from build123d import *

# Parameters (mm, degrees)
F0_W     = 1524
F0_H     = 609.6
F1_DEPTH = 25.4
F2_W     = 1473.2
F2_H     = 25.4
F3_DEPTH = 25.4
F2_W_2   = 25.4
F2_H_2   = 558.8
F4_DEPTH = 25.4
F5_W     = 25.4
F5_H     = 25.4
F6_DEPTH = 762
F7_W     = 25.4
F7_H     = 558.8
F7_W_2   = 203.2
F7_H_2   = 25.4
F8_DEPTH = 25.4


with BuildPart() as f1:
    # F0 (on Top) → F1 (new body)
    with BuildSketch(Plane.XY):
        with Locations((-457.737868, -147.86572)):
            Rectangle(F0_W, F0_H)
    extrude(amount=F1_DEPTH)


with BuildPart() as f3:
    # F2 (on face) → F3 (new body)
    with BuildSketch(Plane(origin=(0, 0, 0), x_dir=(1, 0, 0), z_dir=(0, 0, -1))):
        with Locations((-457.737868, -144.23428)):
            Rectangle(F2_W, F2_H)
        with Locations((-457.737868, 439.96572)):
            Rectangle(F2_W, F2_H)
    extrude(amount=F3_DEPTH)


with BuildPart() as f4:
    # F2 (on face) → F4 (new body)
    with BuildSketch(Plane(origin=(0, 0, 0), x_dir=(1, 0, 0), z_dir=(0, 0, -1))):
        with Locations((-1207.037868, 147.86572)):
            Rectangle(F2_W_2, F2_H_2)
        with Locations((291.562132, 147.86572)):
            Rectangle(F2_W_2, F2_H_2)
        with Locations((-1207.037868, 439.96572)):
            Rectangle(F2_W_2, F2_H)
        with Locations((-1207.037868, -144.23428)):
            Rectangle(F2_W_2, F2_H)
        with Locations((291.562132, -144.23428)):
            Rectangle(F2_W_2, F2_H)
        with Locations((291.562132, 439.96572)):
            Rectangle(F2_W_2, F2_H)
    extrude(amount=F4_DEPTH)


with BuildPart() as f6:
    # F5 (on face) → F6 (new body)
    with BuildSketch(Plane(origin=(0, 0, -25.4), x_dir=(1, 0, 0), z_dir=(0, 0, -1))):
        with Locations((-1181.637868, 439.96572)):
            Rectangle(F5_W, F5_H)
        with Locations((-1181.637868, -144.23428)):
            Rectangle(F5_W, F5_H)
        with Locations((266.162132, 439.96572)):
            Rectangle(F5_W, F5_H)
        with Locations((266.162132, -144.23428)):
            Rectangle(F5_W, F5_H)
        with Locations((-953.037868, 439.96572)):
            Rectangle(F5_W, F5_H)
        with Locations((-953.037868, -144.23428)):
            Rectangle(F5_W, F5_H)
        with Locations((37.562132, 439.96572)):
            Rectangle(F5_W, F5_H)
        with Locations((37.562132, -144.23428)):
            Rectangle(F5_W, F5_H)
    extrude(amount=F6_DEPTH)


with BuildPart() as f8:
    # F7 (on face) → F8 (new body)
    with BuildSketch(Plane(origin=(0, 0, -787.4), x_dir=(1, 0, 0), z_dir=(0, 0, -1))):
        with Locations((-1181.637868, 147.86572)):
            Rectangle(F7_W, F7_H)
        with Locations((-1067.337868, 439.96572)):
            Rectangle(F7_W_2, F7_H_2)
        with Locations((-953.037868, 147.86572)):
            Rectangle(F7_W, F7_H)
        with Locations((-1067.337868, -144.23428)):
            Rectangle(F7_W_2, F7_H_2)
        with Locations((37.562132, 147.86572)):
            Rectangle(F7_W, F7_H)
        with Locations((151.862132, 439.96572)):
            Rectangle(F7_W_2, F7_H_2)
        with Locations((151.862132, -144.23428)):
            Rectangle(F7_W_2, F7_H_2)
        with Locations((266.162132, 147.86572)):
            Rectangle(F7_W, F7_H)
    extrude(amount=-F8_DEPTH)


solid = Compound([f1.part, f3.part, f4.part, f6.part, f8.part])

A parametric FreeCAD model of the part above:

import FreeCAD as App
import Part
import Sketcher
Q = App.Units.Quantity

doc = App.newDocument("Part")
body = doc.addObject("PartDesign::Body", "Body")

# Sketch on XY plane
sketch1 = doc.addObject("Sketcher::SketchObject", "Sketch")
body.addObject(sketch1)
sketch1.AttachmentSupport = (doc.XY_Plane, [""])
sketch1.MapMode = "FlatFace"
sketch1.addGeometry(Part.LineSegment(App.Vector(-1220, 157, 0), App.Vector(-1220, -453, 0)), False)
sketch1.addGeometry(Part.LineSegment(App.Vector(-1220, -453, 0), App.Vector(304, -453, 0)), False)
sketch1.addGeometry(Part.LineSegment(App.Vector(304, -453, 0), App.Vector(304, 157, 0)), False)
sketch1.addGeometry(Part.LineSegment(App.Vector(304, 157, 0), App.Vector(-1220, 157, 0)), False)
sketch1.addConstraint(Sketcher.Constraint("Coincident", 0, 2, 1, 1))
sketch1.addConstraint(Sketcher.Constraint("Coincident", 1, 2, 2, 1))
sketch1.addConstraint(Sketcher.Constraint("Coincident", 2, 2, 3, 1))
sketch1.addConstraint(Sketcher.Constraint("Coincident", 3, 2, 0, 1))
sketch1.addConstraint(Sketcher.Constraint("Vertical", 0))
sketch1.addConstraint(Sketcher.Constraint("Horizontal", 1))
sketch1.addConstraint(Sketcher.Constraint("Vertical", 2))
sketch1.addConstraint(Sketcher.Constraint("Horizontal", 3))
sketch1.addConstraint(Sketcher.Constraint("DistanceX", 1, 1, 1, 2, Q("60 in")))
sketch1.addConstraint(Sketcher.Constraint("DistanceY", 0, 2, 0, 1, Q("24 in")))
sketch1.addConstraint(Sketcher.Constraint("DistanceX", 0, 2, -1, 1, Q("1219.737868 mm")))
sketch1.addConstraint(Sketcher.Constraint("DistanceY", 0, 2, -1, 1, Q("452.66572 mm")))
pad1 = doc.addObject("PartDesign::Pad", "Pad")
body.addObject(pad1)
pad1.Profile = sketch1
pad1.Length = Q("1 in")
body2 = doc.addObject("PartDesign::Body", "Body001")
body2.AllowCompound = True

# Sketch on XY plane
sketch2 = doc.addObject("Sketcher::SketchObject", "Sketch001")
body2.addObject(sketch2)
sketch2.AttachmentSupport = (doc.getObject("XY_Plane001"), [""])
sketch2.MapMode = "FlatFace"
sketch2.addGeometry(Part.LineSegment(App.Vector(-1194, 132, 0), App.Vector(-1194, 157, 0)), False)
sketch2.addGeometry(Part.LineSegment(App.Vector(-1194, 157, 0), App.Vector(279, 157, 0)), False)
sketch2.addGeometry(Part.LineSegment(App.Vector(279, 157, 0), App.Vector(279, 132, 0)), False)
sketch2.addGeometry(Part.LineSegment(App.Vector(279, 132, 0), App.Vector(-1194, 132, 0)), False)
sketch2.addGeometry(Part.LineSegment(App.Vector(-1194, -453, 0), App.Vector(-1194, -427, 0)), False)
sketch2.addGeometry(Part.LineSegment(App.Vector(-1194, -427, 0), App.Vector(279, -427, 0)), False)
sketch2.addGeometry(Part.LineSegment(App.Vector(279, -427, 0), App.Vector(279, -453, 0)), False)
sketch2.addGeometry(Part.LineSegment(App.Vector(279, -453, 0), App.Vector(-1194, -453, 0)), False)
sketch2.addConstraint(Sketcher.Constraint("Coincident", 0, 2, 1, 1))
sketch2.addConstraint(Sketcher.Constraint("Coincident", 1, 2, 2, 1))
sketch2.addConstraint(Sketcher.Constraint("Coincident", 2, 2, 3, 1))
sketch2.addConstraint(Sketcher.Constraint("Coincident", 3, 2, 0, 1))
sketch2.addConstraint(Sketcher.Constraint("Coincident", 4, 2, 5, 1))
sketch2.addConstraint(Sketcher.Constraint("Coincident", 5, 2, 6, 1))
sketch2.addConstraint(Sketcher.Constraint("Coincident", 6, 2, 7, 1))
sketch2.addConstraint(Sketcher.Constraint("Coincident", 7, 2, 4, 1))
sketch2.addConstraint(Sketcher.Constraint("Vertical", 0))
sketch2.addConstraint(Sketcher.Constraint("Horizontal", 1))
sketch2.addConstraint(Sketcher.Constraint("Vertical", 2))
sketch2.addConstraint(Sketcher.Constraint("Horizontal", 3))
sketch2.addConstraint(Sketcher.Constraint("Vertical", 4))
sketch2.addConstraint(Sketcher.Constraint("Horizontal", 5))
sketch2.addConstraint(Sketcher.Constraint("Vertical", 6))
sketch2.addConstraint(Sketcher.Constraint("Horizontal", 7))
sketch2.addConstraint(Sketcher.Constraint("Vertical", 3, 2, 4, 2))
sketch2.addConstraint(Sketcher.Constraint("Vertical", 2, 2, 5, 2))
sketch2.addConstraint(Sketcher.Constraint("Equal", 2, 4))
sketch2.addConstraint(Sketcher.Constraint("DistanceX", 1, 1, 1, 2, Q("58 in")))
sketch2.addConstraint(Sketcher.Constraint("DistanceY", 0, 1, 0, 2, Q("1 in")))
sketch2.addConstraint(Sketcher.Constraint("DistanceY", 4, 2, 3, 2, Q("22 in")))
sketch2.addConstraint(Sketcher.Constraint("DistanceX", 0, 2, -1, 1, Q("1194.337868 mm")))
sketch2.addConstraint(Sketcher.Constraint("DistanceY", -1, 1, 0, 2, Q("156.93428 mm")))
pad2 = doc.addObject("PartDesign::Pad", "Pad001")
body2.addObject(pad2)
pad2.Profile = sketch2
pad2.Length = Q("1 in")
pad2.Reversed = True
body3 = doc.addObject("PartDesign::Body", "Body002")
body3.AllowCompound = True

# Sketch on XY plane
sketch3 = doc.addObject("Sketcher::SketchObject", "Sketch002")
body3.addObject(sketch3)
sketch3.AttachmentSupport = (doc.getObject("XY_Plane002"), [""])
sketch3.MapMode = "FlatFace"
sketch3.addGeometry(Part.LineSegment(App.Vector(-1194, -453, 0), App.Vector(-1220, -453, 0)), False)
sketch3.addGeometry(Part.LineSegment(App.Vector(-1220, -453, 0), App.Vector(-1220, 157, 0)), False)
sketch3.addGeometry(Part.LineSegment(App.Vector(-1220, 157, 0), App.Vector(-1194, 157, 0)), False)
sketch3.addGeometry(Part.LineSegment(App.Vector(-1194, 157, 0), App.Vector(-1194, -453, 0)), False)
sketch3.addGeometry(Part.LineSegment(App.Vector(279, 157, 0), App.Vector(304, 157, 0)), False)
sketch3.addGeometry(Part.LineSegment(App.Vector(304, 157, 0), App.Vector(304, -453, 0)), False)
sketch3.addGeometry(Part.LineSegment(App.Vector(304, -453, 0), App.Vector(279, -453, 0)), False)
sketch3.addGeometry(Part.LineSegment(App.Vector(279, -453, 0), App.Vector(279, 157, 0)), False)
sketch3.addConstraint(Sketcher.Constraint("Coincident", 0, 2, 1, 1))
sketch3.addConstraint(Sketcher.Constraint("Coincident", 1, 2, 2, 1))
sketch3.addConstraint(Sketcher.Constraint("Coincident", 2, 2, 3, 1))
sketch3.addConstraint(Sketcher.Constraint("Coincident", 3, 2, 0, 1))
sketch3.addConstraint(Sketcher.Constraint("Coincident", 4, 2, 5, 1))
sketch3.addConstraint(Sketcher.Constraint("Coincident", 5, 2, 6, 1))
sketch3.addConstraint(Sketcher.Constraint("Coincident", 6, 2, 7, 1))
sketch3.addConstraint(Sketcher.Constraint("Coincident", 7, 2, 4, 1))
sketch3.addConstraint(Sketcher.Constraint("Horizontal", 0))
sketch3.addConstraint(Sketcher.Constraint("Vertical", 1))
sketch3.addConstraint(Sketcher.Constraint("Horizontal", 2))
sketch3.addConstraint(Sketcher.Constraint("Vertical", 3))
sketch3.addConstraint(Sketcher.Constraint("Horizontal", 4))
sketch3.addConstraint(Sketcher.Constraint("Vertical", 5))
sketch3.addConstraint(Sketcher.Constraint("Horizontal", 6))
sketch3.addConstraint(Sketcher.Constraint("Vertical", 7))
sketch3.addConstraint(Sketcher.Constraint("Horizontal", 2, 2, 4, 2))
sketch3.addConstraint(Sketcher.Constraint("Horizontal", 3, 2, 5, 2))
sketch3.addConstraint(Sketcher.Constraint("Equal", 2, 4))
sketch3.addConstraint(Sketcher.Constraint("DistanceX", 0, 2, 0, 1, Q("1 in")))
sketch3.addConstraint(Sketcher.Constraint("DistanceY", 1, 1, 1, 2, Q("24 in")))
sketch3.addConstraint(Sketcher.Constraint("DistanceX", 2, 2, 4, 2, Q("59 in")))
sketch3.addConstraint(Sketcher.Constraint("DistanceX", 0, 2, -1, 1, Q("1219.737868 mm")))
sketch3.addConstraint(Sketcher.Constraint("DistanceY", 0, 2, -1, 1, Q("452.66572 mm")))
pad3 = doc.addObject("PartDesign::Pad", "Pad002")
body3.addObject(pad3)
pad3.Profile = sketch3
pad3.Length = Q("1 in")
pad3.Reversed = True
body4 = doc.addObject("PartDesign::Body", "Body003")
body4.AllowCompound = True

# Sketch on XY plane
sketch4 = doc.addObject("Sketcher::SketchObject", "Sketch003")
body4.addObject(sketch4)
sketch4.AttachmentSupport = (doc.getObject("XY_Plane003"), [""])
sketch4.MapMode = "FlatFace"
sketch4.AttachmentOffset = App.Placement(App.Vector(0, 0, -1 * 25.4), App.Rotation())
sketch4.addGeometry(Part.LineSegment(App.Vector(-1194, -453, 0), App.Vector(-1194, -427, 0)), False)
sketch4.addGeometry(Part.LineSegment(App.Vector(-1194, -427, 0), App.Vector(-1169, -427, 0)), False)
sketch4.addGeometry(Part.LineSegment(App.Vector(-1169, -427, 0), App.Vector(-1169, -453, 0)), False)
sketch4.addGeometry(Part.LineSegment(App.Vector(-1169, -453, 0), App.Vector(-1194, -453, 0)), False)
sketch4.addGeometry(Part.LineSegment(App.Vector(-1194, 132, 0), App.Vector(-1194, 157, 0)), False)
sketch4.addGeometry(Part.LineSegment(App.Vector(-1194, 157, 0), App.Vector(-1169, 157, 0)), False)
sketch4.addGeometry(Part.LineSegment(App.Vector(-1169, 157, 0), App.Vector(-1169, 132, 0)), False)
sketch4.addGeometry(Part.LineSegment(App.Vector(-1169, 132, 0), App.Vector(-1194, 132, 0)), False)
sketch4.addGeometry(Part.LineSegment(App.Vector(253, -453, 0), App.Vector(253, -427, 0)), False)
sketch4.addGeometry(Part.LineSegment(App.Vector(253, -427, 0), App.Vector(279, -427, 0)), False)
sketch4.addGeometry(Part.LineSegment(App.Vector(279, -427, 0), App.Vector(279, -453, 0)), False)
sketch4.addGeometry(Part.LineSegment(App.Vector(279, -453, 0), App.Vector(253, -453, 0)), False)
sketch4.addGeometry(Part.LineSegment(App.Vector(253, 132, 0), App.Vector(253, 157, 0)), False)
sketch4.addGeometry(Part.LineSegment(App.Vector(253, 157, 0), App.Vector(279, 157, 0)), False)
sketch4.addGeometry(Part.LineSegment(App.Vector(279, 157, 0), App.Vector(279, 132, 0)), False)
sketch4.addGeometry(Part.LineSegment(App.Vector(279, 132, 0), App.Vector(253, 132, 0)), False)
sketch4.addGeometry(Part.LineSegment(App.Vector(-966, -453, 0), App.Vector(-966, -427, 0)), False)
sketch4.addGeometry(Part.LineSegment(App.Vector(-966, -427, 0), App.Vector(-940, -427, 0)), False)
sketch4.addGeometry(Part.LineSegment(App.Vector(-940, -427, 0), App.Vector(-940, -453, 0)), False)
sketch4.addGeometry(Part.LineSegment(App.Vector(-940, -453, 0), App.Vector(-966, -453, 0)), False)
sketch4.addGeometry(Part.LineSegment(App.Vector(-966, 132, 0), App.Vector(-966, 157, 0)), False)
sketch4.addGeometry(Part.LineSegment(App.Vector(-966, 157, 0), App.Vector(-940, 157, 0)), False)
sketch4.addGeometry(Part.LineSegment(App.Vector(-940, 157, 0), App.Vector(-940, 132, 0)), False)
sketch4.addGeometry(Part.LineSegment(App.Vector(-940, 132, 0), App.Vector(-966, 132, 0)), False)
sketch4.addGeometry(Part.LineSegment(App.Vector(25, -453, 0), App.Vector(25, -427, 0)), False)
sketch4.addGeometry(Part.LineSegment(App.Vector(25, -427, 0), App.Vector(50, -427, 0)), False)
sketch4.addGeometry(Part.LineSegment(App.Vector(50, -427, 0), App.Vector(50, -453, 0)), False)
sketch4.addGeometry(Part.LineSegment(App.Vector(50, -453, 0), App.Vector(25, -453, 0)), False)
sketch4.addGeometry(Part.LineSegment(App.Vector(25, 132, 0), App.Vector(25, 157, 0)), False)
sketch4.addGeometry(Part.LineSegment(App.Vector(25, 157, 0), App.Vector(50, 157, 0)), False)
sketch4.addGeometry(Part.LineSegment(App.Vector(50, 157, 0), App.Vector(50, 132, 0)), False)
sketch4.addGeometry(Part.LineSegment(App.Vector(50, 132, 0), App.Vector(25, 132, 0)), False)
sketch4.addConstraint(Sketcher.Constraint("Coincident", 0, 2, 1, 1))
sketch4.addConstraint(Sketcher.Constraint("Coincident", 1, 2, 2, 1))
sketch4.addConstraint(Sketcher.Constraint("Coincident", 2, 2, 3, 1))
sketch4.addConstraint(Sketcher.Constraint("Coincident", 3, 2, 0, 1))
sketch4.addConstraint(Sketcher.Constraint("Coincident", 4, 2, 5, 1))
sketch4.addConstraint(Sketcher.Constraint("Coincident", 5, 2, 6, 1))
sketch4.addConstraint(Sketcher.Constraint("Coincident", 6, 2, 7, 1))
sketch4.addConstraint(Sketcher.Constraint("Coincident", 7, 2, 4, 1))
sketch4.addConstraint(Sketcher.Constraint("Coincident", 8, 2, 9, 1))
sketch4.addConstraint(Sketcher.Constraint("Coincident", 9, 2, 10, 1))
sketch4.addConstraint(Sketcher.Constraint("Coincident", 10, 2, 11, 1))
sketch4.addConstraint(Sketcher.Constraint("Coincident", 11, 2, 8, 1))
sketch4.addConstraint(Sketcher.Constraint("Coincident", 12, 2, 13, 1))
sketch4.addConstraint(Sketcher.Constraint("Coincident", 13, 2, 14, 1))
sketch4.addConstraint(Sketcher.Constraint("Coincident", 14, 2, 15, 1))
sketch4.addConstraint(Sketcher.Constraint("Coincident", 15, 2, 12, 1))
sketch4.addConstraint(Sketcher.Constraint("Coincident", 16, 2, 17, 1))
sketch4.addConstraint(Sketcher.Constraint("Coincident", 17, 2, 18, 1))
sketch4.addConstraint(Sketcher.Constraint("Coincident", 18, 2, 19, 1))
sketch4.addConstraint(Sketcher.Constraint("Coincident", 19, 2, 16, 1))
sketch4.addConstraint(Sketcher.Constraint("Coincident", 20, 2, 21, 1))
sketch4.addConstraint(Sketcher.Constraint("Coincident", 21, 2, 22, 1))
sketch4.addConstraint(Sketcher.Constraint("Coincident", 22, 2, 23, 1))
sketch4.addConstraint(Sketcher.Constraint("Coincident", 23, 2, 20, 1))
sketch4.addConstraint(Sketcher.Constraint("Coincident", 24, 2, 25, 1))
sketch4.addConstraint(Sketcher.Constraint("Coincident", 25, 2, 26, 1))
sketch4.addConstraint(Sketcher.Constraint("Coincident", 26, 2, 27, 1))
sketch4.addConstraint(Sketcher.Constraint("Coincident", 27, 2, 24, 1))
sketch4.addConstraint(Sketcher.Constraint("Coincident", 28, 2, 29, 1))
sketch4.addConstraint(Sketcher.Constraint("Coincident", 29, 2, 30, 1))
sketch4.addConstraint(Sketcher.Constraint("Coincident", 30, 2, 31, 1))
sketch4.addConstraint(Sketcher.Constraint("Coincident", 31, 2, 28, 1))
sketch4.addConstraint(Sketcher.Constraint("Vertical", 0))
sketch4.addConstraint(Sketcher.Constraint("Horizontal", 1))
sketch4.addConstraint(Sketcher.Constraint("Vertical", 2))
sketch4.addConstraint(Sketcher.Constraint("Horizontal", 3))
sketch4.addConstraint(Sketcher.Constraint("Vertical", 4))
sketch4.addConstraint(Sketcher.Constraint("Horizontal", 5))
sketch4.addConstraint(Sketcher.Constraint("Vertical", 6))
sketch4.addConstraint(Sketcher.Constraint("Horizontal", 7))
sketch4.addConstraint(Sketcher.Constraint("Vertical", 8))
sketch4.addConstraint(Sketcher.Constraint("Horizontal", 9))
sketch4.addConstraint(Sketcher.Constraint("Vertical", 10))
sketch4.addConstraint(Sketcher.Constraint("Horizontal", 11))
sketch4.addConstraint(Sketcher.Constraint("Vertical", 12))
sketch4.addConstraint(Sketcher.Constraint("Horizontal", 13))
sketch4.addConstraint(Sketcher.Constraint("Vertical", 14))
sketch4.addConstraint(Sketcher.Constraint("Horizontal", 15))
sketch4.addConstraint(Sketcher.Constraint("Vertical", 16))
sketch4.addConstraint(Sketcher.Constraint("Horizontal", 17))
sketch4.addConstraint(Sketcher.Constraint("Vertical", 18))
sketch4.addConstraint(Sketcher.Constraint("Horizontal", 19))
sketch4.addConstraint(Sketcher.Constraint("Vertical", 20))
sketch4.addConstraint(Sketcher.Constraint("Horizontal", 21))
sketch4.addConstraint(Sketcher.Constraint("Vertical", 22))
sketch4.addConstraint(Sketcher.Constraint("Horizontal", 23))
sketch4.addConstraint(Sketcher.Constraint("Vertical", 24))
sketch4.addConstraint(Sketcher.Constraint("Horizontal", 25))
sketch4.addConstraint(Sketcher.Constraint("Vertical", 26))
sketch4.addConstraint(Sketcher.Constraint("Horizontal", 27))
sketch4.addConstraint(Sketcher.Constraint("Vertical", 28))
sketch4.addConstraint(Sketcher.Constraint("Horizontal", 29))
sketch4.addConstraint(Sketcher.Constraint("Vertical", 30))
sketch4.addConstraint(Sketcher.Constraint("Horizontal", 31))
sketch4.addConstraint(Sketcher.Constraint("Horizontal", 1, 2, 8, 2))
sketch4.addConstraint(Sketcher.Constraint("Horizontal", 3, 2, 10, 2))
sketch4.addConstraint(Sketcher.Constraint("Horizontal", 5, 2, 12, 2))
sketch4.addConstraint(Sketcher.Constraint("Horizontal", 7, 2, 14, 2))
sketch4.addConstraint(Sketcher.Constraint("Horizontal", 9, 2, 16, 2))
sketch4.addConstraint(Sketcher.Constraint("Horizontal", 11, 2, 18, 2))
sketch4.addConstraint(Sketcher.Constraint("Horizontal", 13, 2, 20, 2))
sketch4.addConstraint(Sketcher.Constraint("Horizontal", 15, 2, 22, 2))
sketch4.addConstraint(Sketcher.Constraint("Horizontal", 17, 2, 24, 2))
sketch4.addConstraint(Sketcher.Constraint("Horizontal", 19, 2, 26, 2))
sketch4.addConstraint(Sketcher.Constraint("Horizontal", 21, 2, 28, 2))
sketch4.addConstraint(Sketcher.Constraint("Horizontal", 23, 2, 30, 2))
sketch4.addConstraint(Sketcher.Constraint("Vertical", 3, 2, 4, 2))
sketch4.addConstraint(Sketcher.Constraint("Vertical", 2, 2, 5, 2))
sketch4.addConstraint(Sketcher.Constraint("Vertical", 11, 2, 12, 2))
sketch4.addConstraint(Sketcher.Constraint("Vertical", 10, 2, 13, 2))
sketch4.addConstraint(Sketcher.Constraint("Vertical", 19, 2, 20, 2))
sketch4.addConstraint(Sketcher.Constraint("Vertical", 18, 2, 21, 2))
sketch4.addConstraint(Sketcher.Constraint("Vertical", 27, 2, 28, 2))
sketch4.addConstraint(Sketcher.Constraint("Vertical", 26, 2, 29, 2))
sketch4.addConstraint(Sketcher.Constraint("Equal", 7, 9))
sketch4.addConstraint(Sketcher.Constraint("Equal", 15, 17))
sketch4.addConstraint(Sketcher.Constraint("Equal", 23, 25))
sketch4.addConstraint(Sketcher.Constraint("Equal", 31, 0))
sketch4.addConstraint(Sketcher.Constraint("Equal", 2, 4))
sketch4.addConstraint(Sketcher.Constraint("DistanceX", 1, 1, 1, 2, Q("1 in")))
sketch4.addConstraint(Sketcher.Constraint("DistanceY", 0, 2, 4, 2, Q("23 in")))
sketch4.addConstraint(Sketcher.Constraint("DistanceX", 1, 2, 8, 2, Q("56 in")))
sketch4.addConstraint(Sketcher.Constraint("DistanceX", 1, 2, 16, 2, Q("8 in")))
sketch4.addConstraint(Sketcher.Constraint("DistanceX", 24, 2, 8, 2, Q("9 in")))
sketch4.addConstraint(Sketcher.Constraint("DistanceX", 0, 2, -1, 1, Q("1194.337868 mm")))
sketch4.addConstraint(Sketcher.Constraint("DistanceY", 0, 2, -1, 1, Q("427.26572 mm")))
pad4 = doc.addObject("PartDesign::Pad", "Pad003")
body4.addObject(pad4)
pad4.Profile = sketch4
pad4.Length = Q("30 in")
pad4.Reversed = True
body5 = doc.addObject("PartDesign::Body", "Body004")
body5.AllowCompound = True

# Sketch on XY plane
sketch5 = doc.addObject("Sketcher::SketchObject", "Sketch004")
body5.addObject(sketch5)
sketch5.AttachmentSupport = (doc.getObject("XY_Plane004"), [""])
sketch5.MapMode = "FlatFace"
sketch5.AttachmentOffset = App.Placement(App.Vector(0, 0, -31 * 25.4), App.Rotation())
sketch5.addGeometry(Part.LineSegment(App.Vector(-1194, -427, 0), App.Vector(-1194, 132, 0)), False)
sketch5.addGeometry(Part.LineSegment(App.Vector(-1194, 132, 0), App.Vector(-1169, 132, 0)), False)
sketch5.addGeometry(Part.LineSegment(App.Vector(-1169, 132, 0), App.Vector(-1169, -427, 0)), False)
sketch5.addGeometry(Part.LineSegment(App.Vector(-1169, -427, 0), App.Vector(-1194, -427, 0)), False)
sketch5.addGeometry(Part.LineSegment(App.Vector(-1169, -453, 0), App.Vector(-1169, -427, 0)), False)
sketch5.addGeometry(Part.LineSegment(App.Vector(-1169, -427, 0), App.Vector(-966, -427, 0)), False)
sketch5.addGeometry(Part.LineSegment(App.Vector(-966, -427, 0), App.Vector(-966, -453, 0)), False)
sketch5.addGeometry(Part.LineSegment(App.Vector(-966, -453, 0), App.Vector(-1169, -453, 0)), False)
sketch5.addGeometry(Part.LineSegment(App.Vector(-966, -427, 0), App.Vector(-966, 132, 0)), False)
sketch5.addGeometry(Part.LineSegment(App.Vector(-966, 132, 0), App.Vector(-940, 132, 0)), False)
sketch5.addGeometry(Part.LineSegment(App.Vector(-940, 132, 0), App.Vector(-940, -427, 0)), False)
sketch5.addGeometry(Part.LineSegment(App.Vector(-940, -427, 0), App.Vector(-966, -427, 0)), False)
sketch5.addGeometry(Part.LineSegment(App.Vector(-1169, 132, 0), App.Vector(-1169, 157, 0)), False)
sketch5.addGeometry(Part.LineSegment(App.Vector(-1169, 157, 0), App.Vector(-966, 157, 0)), False)
sketch5.addGeometry(Part.LineSegment(App.Vector(-966, 157, 0), App.Vector(-966, 132, 0)), False)
sketch5.addGeometry(Part.LineSegment(App.Vector(-966, 132, 0), App.Vector(-1169, 132, 0)), False)
sketch5.addGeometry(Part.LineSegment(App.Vector(25, -427, 0), App.Vector(25, 132, 0)), False)
sketch5.addGeometry(Part.LineSegment(App.Vector(25, 132, 0), App.Vector(50, 132, 0)), False)
sketch5.addGeometry(Part.LineSegment(App.Vector(50, 132, 0), App.Vector(50, -427, 0)), False)
sketch5.addGeometry(Part.LineSegment(App.Vector(50, -427, 0), App.Vector(25, -427, 0)), False)
sketch5.addGeometry(Part.LineSegment(App.Vector(50, -453, 0), App.Vector(50, -427, 0)), False)
sketch5.addGeometry(Part.LineSegment(App.Vector(50, -427, 0), App.Vector(253, -427, 0)), False)
sketch5.addGeometry(Part.LineSegment(App.Vector(253, -427, 0), App.Vector(253, -453, 0)), False)
sketch5.addGeometry(Part.LineSegment(App.Vector(253, -453, 0), App.Vector(50, -453, 0)), False)
sketch5.addGeometry(Part.LineSegment(App.Vector(50, 132, 0), App.Vector(50, 157, 0)), False)
sketch5.addGeometry(Part.LineSegment(App.Vector(50, 157, 0), App.Vector(253, 157, 0)), False)
sketch5.addGeometry(Part.LineSegment(App.Vector(253, 157, 0), App.Vector(253, 132, 0)), False)
sketch5.addGeometry(Part.LineSegment(App.Vector(253, 132, 0), App.Vector(50, 132, 0)), False)
sketch5.addGeometry(Part.LineSegment(App.Vector(253, -427, 0), App.Vector(253, 132, 0)), False)
sketch5.addGeometry(Part.LineSegment(App.Vector(253, 132, 0), App.Vector(279, 132, 0)), False)
sketch5.addGeometry(Part.LineSegment(App.Vector(279, 132, 0), App.Vector(279, -427, 0)), False)
sketch5.addGeometry(Part.LineSegment(App.Vector(279, -427, 0), App.Vector(253, -427, 0)), False)
sketch5.addConstraint(Sketcher.Constraint("Coincident", 0, 2, 1, 1))
sketch5.addConstraint(Sketcher.Constraint("Coincident", 1, 2, 2, 1))
sketch5.addConstraint(Sketcher.Constraint("Coincident", 2, 2, 3, 1))
sketch5.addConstraint(Sketcher.Constraint("Coincident", 3, 2, 0, 1))
sketch5.addConstraint(Sketcher.Constraint("Coincident", 4, 2, 5, 1))
sketch5.addConstraint(Sketcher.Constraint("Coincident", 5, 2, 6, 1))
sketch5.addConstraint(Sketcher.Constraint("Coincident", 6, 2, 7, 1))
sketch5.addConstraint(Sketcher.Constraint("Coincident", 7, 2, 4, 1))
sketch5.addConstraint(Sketcher.Constraint("Coincident", 8, 2, 9, 1))
sketch5.addConstraint(Sketcher.Constraint("Coincident", 9, 2, 10, 1))
sketch5.addConstraint(Sketcher.Constraint("Coincident", 10, 2, 11, 1))
sketch5.addConstraint(Sketcher.Constraint("Coincident", 11, 2, 8, 1))
sketch5.addConstraint(Sketcher.Constraint("Coincident", 12, 2, 13, 1))
sketch5.addConstraint(Sketcher.Constraint("Coincident", 13, 2, 14, 1))
sketch5.addConstraint(Sketcher.Constraint("Coincident", 14, 2, 15, 1))
sketch5.addConstraint(Sketcher.Constraint("Coincident", 15, 2, 12, 1))
sketch5.addConstraint(Sketcher.Constraint("Coincident", 16, 2, 17, 1))
sketch5.addConstraint(Sketcher.Constraint("Coincident", 17, 2, 18, 1))
sketch5.addConstraint(Sketcher.Constraint("Coincident", 18, 2, 19, 1))
sketch5.addConstraint(Sketcher.Constraint("Coincident", 19, 2, 16, 1))
sketch5.addConstraint(Sketcher.Constraint("Coincident", 20, 2, 21, 1))
sketch5.addConstraint(Sketcher.Constraint("Coincident", 21, 2, 22, 1))
sketch5.addConstraint(Sketcher.Constraint("Coincident", 22, 2, 23, 1))
sketch5.addConstraint(Sketcher.Constraint("Coincident", 23, 2, 20, 1))
sketch5.addConstraint(Sketcher.Constraint("Coincident", 24, 2, 25, 1))
sketch5.addConstraint(Sketcher.Constraint("Coincident", 25, 2, 26, 1))
sketch5.addConstraint(Sketcher.Constraint("Coincident", 26, 2, 27, 1))
sketch5.addConstraint(Sketcher.Constraint("Coincident", 27, 2, 24, 1))
sketch5.addConstraint(Sketcher.Constraint("Coincident", 28, 2, 29, 1))
sketch5.addConstraint(Sketcher.Constraint("Coincident", 29, 2, 30, 1))
sketch5.addConstraint(Sketcher.Constraint("Coincident", 30, 2, 31, 1))
sketch5.addConstraint(Sketcher.Constraint("Coincident", 31, 2, 28, 1))
sketch5.addConstraint(Sketcher.Constraint("Vertical", 0))
sketch5.addConstraint(Sketcher.Constraint("Horizontal", 1))
sketch5.addConstraint(Sketcher.Constraint("Vertical", 2))
sketch5.addConstraint(Sketcher.Constraint("Horizontal", 3))
sketch5.addConstraint(Sketcher.Constraint("Vertical", 4))
sketch5.addConstraint(Sketcher.Constraint("Horizontal", 5))
sketch5.addConstraint(Sketcher.Constraint("Vertical", 6))
sketch5.addConstraint(Sketcher.Constraint("Horizontal", 7))
sketch5.addConstraint(Sketcher.Constraint("Vertical", 8))
sketch5.addConstraint(Sketcher.Constraint("Horizontal", 9))
sketch5.addConstraint(Sketcher.Constraint("Vertical", 10))
sketch5.addConstraint(Sketcher.Constraint("Horizontal", 11))
sketch5.addConstraint(Sketcher.Constraint("Vertical", 12))
sketch5.addConstraint(Sketcher.Constraint("Horizontal", 13))
sketch5.addConstraint(Sketcher.Constraint("Vertical", 14))
sketch5.addConstraint(Sketcher.Constraint("Horizontal", 15))
sketch5.addConstraint(Sketcher.Constraint("Vertical", 16))
sketch5.addConstraint(Sketcher.Constraint("Horizontal", 17))
sketch5.addConstraint(Sketcher.Constraint("Vertical", 18))
sketch5.addConstraint(Sketcher.Constraint("Horizontal", 19))
sketch5.addConstraint(Sketcher.Constraint("Vertical", 20))
sketch5.addConstraint(Sketcher.Constraint("Horizontal", 21))
sketch5.addConstraint(Sketcher.Constraint("Vertical", 22))
sketch5.addConstraint(Sketcher.Constraint("Horizontal", 23))
sketch5.addConstraint(Sketcher.Constraint("Vertical", 24))
sketch5.addConstraint(Sketcher.Constraint("Horizontal", 25))
sketch5.addConstraint(Sketcher.Constraint("Vertical", 26))
sketch5.addConstraint(Sketcher.Constraint("Horizontal", 27))
sketch5.addConstraint(Sketcher.Constraint("Vertical", 28))
sketch5.addConstraint(Sketcher.Constraint("Horizontal", 29))
sketch5.addConstraint(Sketcher.Constraint("Vertical", 30))
sketch5.addConstraint(Sketcher.Constraint("Horizontal", 31))
sketch5.addConstraint(Sketcher.Constraint("Coincident", 4, 2, 2, 2))
sketch5.addConstraint(Sketcher.Constraint("Coincident", 11, 2, 5, 2))
sketch5.addConstraint(Sketcher.Constraint("Coincident", 14, 2, 8, 2))
sketch5.addConstraint(Sketcher.Constraint("Coincident", 15, 2, 1, 2))
sketch5.addConstraint(Sketcher.Constraint("Coincident", 20, 2, 18, 2))
sketch5.addConstraint(Sketcher.Constraint("Coincident", 27, 2, 17, 2))
sketch5.addConstraint(Sketcher.Constraint("Coincident", 28, 2, 26, 2))
sketch5.addConstraint(Sketcher.Constraint("Coincident", 31, 2, 21, 2))
sketch5.addConstraint(Sketcher.Constraint("Horizontal", 15, 2, 16, 2))
sketch5.addConstraint(Sketcher.Constraint("Horizontal", 11, 2, 18, 2))
sketch5.addConstraint(Sketcher.Constraint("Horizontal", 7, 2, 22, 2))
sketch5.addConstraint(Sketcher.Constraint("Horizontal", 13, 2, 24, 2))
sketch5.addConstraint(Sketcher.Constraint("Equal", 3, 9))
sketch5.addConstraint(Sketcher.Constraint("Equal", 11, 17))
sketch5.addConstraint(Sketcher.Constraint("Equal", 15, 21))
sketch5.addConstraint(Sketcher.Constraint("Equal", 19, 29))
sketch5.addConstraint(Sketcher.Constraint("Equal", 31, 4))
sketch5.addConstraint(Sketcher.Constraint("Equal", 6, 12))
sketch5.addConstraint(Sketcher.Constraint("DistanceX", 1, 1, 1, 2, Q("1 in")))
sketch5.addConstraint(Sketcher.Constraint("DistanceX", 5, 1, 5, 2, Q("8 in")))
sketch5.addConstraint(Sketcher.Constraint("DistanceY", 0, 1, 0, 2, Q("22 in")))
sketch5.addConstraint(Sketcher.Constraint("DistanceX", 9, 2, 16, 2, Q("38 in")))
sketch5.addConstraint(Sketcher.Constraint("DistanceX", 0, 2, -1, 1, Q("1194.337868 mm")))
sketch5.addConstraint(Sketcher.Constraint("DistanceY", -1, 1, 0, 2, Q("131.53428 mm")))
pad5 = doc.addObject("PartDesign::Pad", "Pad004")
body5.addObject(pad5)
pad5.Profile = sketch5
pad5.Length = Q("1 in")

doc.recompute()
